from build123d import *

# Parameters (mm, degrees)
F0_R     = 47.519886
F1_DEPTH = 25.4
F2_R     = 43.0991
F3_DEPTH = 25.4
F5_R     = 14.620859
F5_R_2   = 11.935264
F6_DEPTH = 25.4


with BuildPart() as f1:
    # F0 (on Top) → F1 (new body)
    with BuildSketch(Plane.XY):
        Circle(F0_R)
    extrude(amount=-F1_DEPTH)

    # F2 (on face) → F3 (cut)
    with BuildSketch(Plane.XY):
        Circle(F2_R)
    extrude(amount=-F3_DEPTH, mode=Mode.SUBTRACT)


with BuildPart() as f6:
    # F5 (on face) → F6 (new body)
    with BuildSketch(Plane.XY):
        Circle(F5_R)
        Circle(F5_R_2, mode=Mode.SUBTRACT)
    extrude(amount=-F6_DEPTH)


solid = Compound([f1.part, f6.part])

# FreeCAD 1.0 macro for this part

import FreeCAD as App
import Part
import Sketcher
from FreeCAD import Vector

doc = App.newDocument("Part")
params = doc.addObject("Spreadsheet::Sheet", "Params")
for row, (alias, value) in enumerate([
    ("pad1_length", "1 in"),
    ("pocket1_length", "1 in"),
    ("pad2_length", "1 in"),
], start=1):
    params.set(f"A{row}", alias)
    params.set(f"B{row}", "=" + value)
    params.setAlias(f"B{row}", alias)

body = doc.addObject("PartDesign::Body", "Body")

sketch1 = body.newObject("Sketcher::SketchObject", "Sketch")
sketch1.AttachmentSupport = (doc.getObject("XY_Plane"), [""])
sketch1.MapMode = "FlatFace"
sketch1.addGeometry(Part.Circle(Vector(0, 0, 0), Vector(0, 0, 1), 48), False)
sketch1.addConstraint([
    Sketcher.Constraint("Coincident", 0, 3, -1, 1),
    Sketcher.Constraint("Diameter", 0, 95.039772),
])
pad1 = body.newObject("PartDesign::Pad", "Pad")
pad1.Profile = sketch1
pad1.setExpression("Length", "Params.pad1_length")
pad1.Reversed = True

sketch2 = body.newObject("Sketcher::SketchObject", "Sketch001")
sketch2.AttachmentSupport = (doc.getObject("XY_Plane"), [""])
sketch2.MapMode = "FlatFace"
sketch2.addGeometry(Part.Circle(Vector(0, 0, 0), Vector(0, 0, 1), 43), False)
sketch2.addConstraint([
    Sketcher.Constraint("Coincident", 0, 3, -1, 1),
    Sketcher.Constraint("Diameter", 0, 86.1982),
])
pocket1 = body.newObject("PartDesign::Pocket", "Pocket")
pocket1.Profile = sketch2
pocket1.setExpression("Length", "Params.pocket1_length")
body2 = doc.addObject("PartDesign::Body", "Body001")

sketch3 = body2.newObject("Sketcher::SketchObject", "Sketch002")
sketch3.AttachmentSupport = (doc.getObject("XY_Plane001"), [""])
sketch3.MapMode = "FlatFace"
sketch3.addGeometry([
    Part.Circle(Vector(0, 0, 0), Vector(0, 0, 1), 15),
    Part.Circle(Vector(0, 0, 0), Vector(0, 0, 1), 12),
], False)
sketch3.addConstraint([
    Sketcher.Constraint("Coincident", 0, 3, -1, 1),
    Sketcher.Constraint("Coincident", 1, 3, -1, 1),
    Sketcher.Constraint("Diameter", 1, 23.870528),
    Sketcher.Constraint("Diameter", 0, 29.241718),
])
pad2 = body2.newObject("PartDesign::Pad", "Pad001")
pad2.Profile = sketch3
pad2.setExpression("Length", "Params.pad2_length")
pad2.Reversed = True

doc.recompute()
